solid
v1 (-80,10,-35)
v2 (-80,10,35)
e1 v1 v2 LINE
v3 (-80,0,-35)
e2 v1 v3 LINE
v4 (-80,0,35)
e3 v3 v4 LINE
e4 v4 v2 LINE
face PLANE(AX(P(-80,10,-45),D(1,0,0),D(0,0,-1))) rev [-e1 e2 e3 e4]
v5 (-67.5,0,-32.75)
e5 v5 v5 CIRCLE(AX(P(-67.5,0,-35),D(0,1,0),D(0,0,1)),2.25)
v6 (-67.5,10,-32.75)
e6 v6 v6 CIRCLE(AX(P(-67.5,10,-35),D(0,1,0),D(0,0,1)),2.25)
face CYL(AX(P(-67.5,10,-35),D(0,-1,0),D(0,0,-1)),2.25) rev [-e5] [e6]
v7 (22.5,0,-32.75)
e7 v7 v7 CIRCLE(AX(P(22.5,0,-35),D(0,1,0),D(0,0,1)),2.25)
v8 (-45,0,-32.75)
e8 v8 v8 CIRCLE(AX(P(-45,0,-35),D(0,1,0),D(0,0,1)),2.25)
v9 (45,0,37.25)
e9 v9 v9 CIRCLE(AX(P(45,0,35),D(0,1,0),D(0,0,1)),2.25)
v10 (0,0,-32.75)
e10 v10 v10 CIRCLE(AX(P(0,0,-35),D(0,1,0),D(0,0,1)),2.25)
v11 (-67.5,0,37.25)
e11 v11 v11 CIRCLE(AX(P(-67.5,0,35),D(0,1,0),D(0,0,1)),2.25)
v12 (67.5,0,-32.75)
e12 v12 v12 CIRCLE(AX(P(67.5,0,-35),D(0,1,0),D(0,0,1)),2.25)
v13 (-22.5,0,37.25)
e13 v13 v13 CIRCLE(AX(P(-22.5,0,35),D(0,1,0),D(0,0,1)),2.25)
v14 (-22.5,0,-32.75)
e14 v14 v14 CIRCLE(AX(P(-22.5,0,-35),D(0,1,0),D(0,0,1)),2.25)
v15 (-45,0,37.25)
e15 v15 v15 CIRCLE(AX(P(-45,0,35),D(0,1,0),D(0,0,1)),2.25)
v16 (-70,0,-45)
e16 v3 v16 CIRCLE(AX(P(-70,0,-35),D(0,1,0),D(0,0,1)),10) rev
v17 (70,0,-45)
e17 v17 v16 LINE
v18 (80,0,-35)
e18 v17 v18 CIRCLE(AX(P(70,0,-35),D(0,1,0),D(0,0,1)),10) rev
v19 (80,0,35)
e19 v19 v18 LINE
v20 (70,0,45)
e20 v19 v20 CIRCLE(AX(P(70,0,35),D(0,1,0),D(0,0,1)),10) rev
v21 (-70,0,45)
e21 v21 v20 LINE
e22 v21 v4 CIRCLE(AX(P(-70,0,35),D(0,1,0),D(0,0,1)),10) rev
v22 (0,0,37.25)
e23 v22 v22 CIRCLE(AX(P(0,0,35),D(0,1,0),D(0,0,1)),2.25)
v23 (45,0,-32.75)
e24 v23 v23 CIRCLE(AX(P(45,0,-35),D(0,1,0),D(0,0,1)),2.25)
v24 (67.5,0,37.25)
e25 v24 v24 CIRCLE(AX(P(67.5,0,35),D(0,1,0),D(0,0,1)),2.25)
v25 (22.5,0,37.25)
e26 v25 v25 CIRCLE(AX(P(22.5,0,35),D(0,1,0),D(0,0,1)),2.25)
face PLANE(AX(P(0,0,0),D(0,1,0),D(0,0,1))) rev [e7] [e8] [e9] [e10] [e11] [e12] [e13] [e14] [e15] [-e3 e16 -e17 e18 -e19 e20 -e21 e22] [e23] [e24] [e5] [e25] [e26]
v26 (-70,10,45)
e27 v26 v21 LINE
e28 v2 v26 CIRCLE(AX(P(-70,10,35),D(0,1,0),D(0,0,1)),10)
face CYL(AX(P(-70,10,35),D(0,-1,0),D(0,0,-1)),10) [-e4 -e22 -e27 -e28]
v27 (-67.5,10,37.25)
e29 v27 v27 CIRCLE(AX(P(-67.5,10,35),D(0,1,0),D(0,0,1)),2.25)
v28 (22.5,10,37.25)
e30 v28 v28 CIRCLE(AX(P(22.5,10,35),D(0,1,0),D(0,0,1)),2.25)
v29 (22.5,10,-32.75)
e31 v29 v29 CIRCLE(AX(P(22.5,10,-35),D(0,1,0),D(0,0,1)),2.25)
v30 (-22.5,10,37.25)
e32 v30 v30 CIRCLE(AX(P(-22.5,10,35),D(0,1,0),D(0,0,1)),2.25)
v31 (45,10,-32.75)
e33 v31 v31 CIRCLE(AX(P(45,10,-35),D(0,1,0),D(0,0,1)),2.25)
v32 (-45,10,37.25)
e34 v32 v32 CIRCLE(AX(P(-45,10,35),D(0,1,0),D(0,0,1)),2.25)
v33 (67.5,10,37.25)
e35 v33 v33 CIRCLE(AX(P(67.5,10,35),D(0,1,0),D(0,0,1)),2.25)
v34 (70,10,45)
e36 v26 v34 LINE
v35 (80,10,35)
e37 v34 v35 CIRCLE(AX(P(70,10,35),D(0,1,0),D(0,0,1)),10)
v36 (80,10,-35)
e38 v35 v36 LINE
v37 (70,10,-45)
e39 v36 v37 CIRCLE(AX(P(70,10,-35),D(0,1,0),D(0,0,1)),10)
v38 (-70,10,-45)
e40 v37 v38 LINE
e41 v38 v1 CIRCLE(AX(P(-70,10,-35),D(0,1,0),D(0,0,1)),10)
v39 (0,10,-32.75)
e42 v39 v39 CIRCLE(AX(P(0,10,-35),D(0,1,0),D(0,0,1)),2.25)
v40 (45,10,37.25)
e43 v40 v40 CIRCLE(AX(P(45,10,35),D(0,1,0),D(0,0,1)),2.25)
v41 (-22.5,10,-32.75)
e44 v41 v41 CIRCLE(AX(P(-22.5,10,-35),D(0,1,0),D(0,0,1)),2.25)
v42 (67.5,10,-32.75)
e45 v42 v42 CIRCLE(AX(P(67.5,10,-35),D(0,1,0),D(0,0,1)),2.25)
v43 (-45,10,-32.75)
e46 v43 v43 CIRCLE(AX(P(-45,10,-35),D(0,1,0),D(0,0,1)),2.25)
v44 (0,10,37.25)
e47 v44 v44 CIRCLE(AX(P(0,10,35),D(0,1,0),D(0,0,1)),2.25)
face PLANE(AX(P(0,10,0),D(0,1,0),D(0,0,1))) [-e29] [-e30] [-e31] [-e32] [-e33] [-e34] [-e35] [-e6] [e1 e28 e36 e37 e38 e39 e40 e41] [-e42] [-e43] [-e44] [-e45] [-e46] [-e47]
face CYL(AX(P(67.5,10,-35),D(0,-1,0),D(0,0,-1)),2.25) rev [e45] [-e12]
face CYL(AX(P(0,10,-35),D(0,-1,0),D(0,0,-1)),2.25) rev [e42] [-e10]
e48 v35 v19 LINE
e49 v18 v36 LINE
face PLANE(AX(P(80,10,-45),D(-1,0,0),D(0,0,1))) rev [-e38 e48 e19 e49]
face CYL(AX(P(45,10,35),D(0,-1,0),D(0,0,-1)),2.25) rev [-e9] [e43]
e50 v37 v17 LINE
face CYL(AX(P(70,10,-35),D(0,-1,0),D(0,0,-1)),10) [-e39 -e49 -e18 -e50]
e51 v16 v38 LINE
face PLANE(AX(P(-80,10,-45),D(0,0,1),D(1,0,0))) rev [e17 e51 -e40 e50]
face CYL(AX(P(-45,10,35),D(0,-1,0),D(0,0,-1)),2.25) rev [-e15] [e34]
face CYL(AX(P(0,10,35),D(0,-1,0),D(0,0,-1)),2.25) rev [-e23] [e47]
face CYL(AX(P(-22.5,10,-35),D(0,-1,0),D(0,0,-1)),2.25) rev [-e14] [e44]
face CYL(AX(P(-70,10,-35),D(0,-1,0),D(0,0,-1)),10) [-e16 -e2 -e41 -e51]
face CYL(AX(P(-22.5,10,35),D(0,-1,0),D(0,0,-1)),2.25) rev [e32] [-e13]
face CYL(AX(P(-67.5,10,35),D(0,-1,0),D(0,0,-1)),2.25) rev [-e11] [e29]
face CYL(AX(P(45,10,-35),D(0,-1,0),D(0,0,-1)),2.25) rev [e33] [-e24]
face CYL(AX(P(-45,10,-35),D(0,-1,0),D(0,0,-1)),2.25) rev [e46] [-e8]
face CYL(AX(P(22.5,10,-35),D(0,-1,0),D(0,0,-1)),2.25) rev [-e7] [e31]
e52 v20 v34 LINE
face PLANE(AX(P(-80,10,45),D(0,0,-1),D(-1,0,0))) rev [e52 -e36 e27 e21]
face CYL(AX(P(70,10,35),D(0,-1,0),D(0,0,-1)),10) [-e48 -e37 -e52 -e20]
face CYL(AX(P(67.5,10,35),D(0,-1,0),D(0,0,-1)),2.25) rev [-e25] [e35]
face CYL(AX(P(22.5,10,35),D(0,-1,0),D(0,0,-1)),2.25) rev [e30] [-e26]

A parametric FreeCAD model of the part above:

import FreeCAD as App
import Part
import Sketcher
Q = App.Units.Quantity


def edges_at(feature, points):
    """Names of the edges that pass closest to the given points."""
    edges = feature.Shape.Edges
    near = lambda p: min(range(len(edges)), key=lambda i: edges[i].distToShape(Part.Vertex(*p))[0])
    return sorted({f"Edge{near(p) + 1}" for p in points})


def add_polygon(sketch, points):
    """Adds a closed chain of lines whose ends are joined by coincident constraints."""
    first, n = sketch.GeometryCount, len(points)
    for a, b in zip(points, points[1:] + points[:1]):
        sketch.addGeometry(Part.LineSegment(App.Vector(*a, 0), App.Vector(*b, 0)), False)
    for i in range(n):
        sketch.addConstraint(Sketcher.Constraint("Coincident", first + i, 2, first + (i + 1) % n, 1))

doc = App.newDocument("Part")
body = doc.addObject("PartDesign::Body", "Body")

# Sketch on XZ plane
sketch1 = doc.addObject("Sketcher::SketchObject", "Sketch")
body.addObject(sketch1)
sketch1.AttachmentSupport = (doc.XZ_Plane, [""])
sketch1.MapMode = "FlatFace"
add_polygon(sketch1, [(-80, -45), (-80, 45), (80, 45), (80, -45)])  # lines 0-3
sketch1.addGeometry(Part.Circle(App.Vector(-67.5, 35, 0), App.Vector(0, 0, 1), 2.2), False)  # 4
sketch1.addGeometry(Part.Circle(App.Vector(-45, 35, 0), App.Vector(0, 0, 1), 2.2), False)  # 5
sketch1.addGeometry(Part.Circle(App.Vector(-22.5, 35, 0), App.Vector(0, 0, 1), 2.2), False)  # 6
sketch1.addGeometry(Part.Circle(App.Vector(0, 35, 0), App.Vector(0, 0, 1), 2.2), False)  # 7
sketch1.addGeometry(Part.Circle(App.Vector(22.5, 35, 0), App.Vector(0, 0, 1), 2.2), False)  # 8
sketch1.addGeometry(Part.Circle(App.Vector(45, 35, 0), App.Vector(0, 0, 1), 2.2), False)  # 9
sketch1.addGeometry(Part.Circle(App.Vector(67.5, 35, 0), App.Vector(0, 0, 1), 2.2), False)  # 10
sketch1.addGeometry(Part.Circle(App.Vector(-67.5, -35, 0), App.Vector(0, 0, 1), 2.2), False)  # 11
sketch1.addGeometry(Part.Circle(App.Vector(-45, -35, 0), App.Vector(0, 0, 1), 2.2), False)  # 12
sketch1.addGeometry(Part.Circle(App.Vector(-22.5, -35, 0), App.Vector(0, 0, 1), 2.2), False)  # 13
sketch1.addGeometry(Part.Circle(App.Vector(0, -35, 0), App.Vector(0, 0, 1), 2.2), False)  # 14
sketch1.addGeometry(Part.Circle(App.Vector(22.5, -35, 0), App.Vector(0, 0, 1), 2.2), False)  # 15
sketch1.addGeometry(Part.Circle(App.Vector(45, -35, 0), App.Vector(0, 0, 1), 2.2), False)  # 16
sketch1.addGeometry(Part.Circle(App.Vector(67.5, -35, 0), App.Vector(0, 0, 1), 2.2), False)  # 17
sketch1.addConstraint([
    Sketcher.Constraint("Vertical", 0),
    Sketcher.Constraint("Horizontal", 1),
    Sketcher.Constraint("Vertical", 2),
    Sketcher.Constraint("Horizontal", 3),
    Sketcher.Constraint("Equal", 4, 5),
    Sketcher.Constraint("Equal", 5, 6),
    Sketcher.Constraint("Equal", 6, 7),
    Sketcher.Constraint("Equal", 7, 8),
    Sketcher.Constraint("Equal", 8, 9),
    Sketcher.Constraint("Equal", 9, 10),
    Sketcher.Constraint("Equal", 10, 11),
    Sketcher.Constraint("Equal", 11, 12),
    Sketcher.Constraint("Equal", 12, 13),
    Sketcher.Constraint("Equal", 13, 14),
    Sketcher.Constraint("Equal", 14, 15),
    Sketcher.Constraint("Equal", 15, 16),
    Sketcher.Constraint("Equal", 16, 17),
    Sketcher.Constraint("Symmetric", 10, 3, 11, 3, -1, 1),
    Sketcher.Constraint("Symmetric", 9, 3, 12, 3, -1, 1),
    Sketcher.Constraint("Symmetric", 8, 3, 13, 3, -1, 1),
    Sketcher.Constraint("Symmetric", 7, 3, 14, 3, -1, 1),
    Sketcher.Constraint("Symmetric", 6, 3, 15, 3, -1, 1),
    Sketcher.Constraint("Symmetric", 5, 3, 16, 3, -1, 1),
    Sketcher.Constraint("Symmetric", 4, 3, 17, 3, -1, 1),
    Sketcher.Constraint("Symmetric", 0, 2, 2, 2, -1, 1),
    Sketcher.Constraint("Symmetric", 6, 3, 8, 3, -2),
    Sketcher.Constraint("Symmetric", 5, 3, 9, 3, -2),
    Sketcher.Constraint("Symmetric", 4, 3, 10, 3, -2),
    Sketcher.Constraint("PointOnObject", 7, 3, -2),
    Sketcher.Constraint("Horizontal", 4, 3, 5, 3),
    Sketcher.Constraint("Horizontal", 5, 3, 6, 3),
    Sketcher.Constraint("Horizontal", 6, 3, 7, 3),
    Sketcher.Constraint("Diameter", 4, Q("4.5 mm")),
    Sketcher.Constraint("DistanceX", 1, 1, 1, 2, Q("160 mm")),
    Sketcher.Constraint("DistanceY", 0, 1, 0, 2, Q("90 mm")),
    Sketcher.Constraint("DistanceY", -1, 1, 4, 3, Q("35 mm")),
    Sketcher.Constraint("DistanceX", 5, 3, -1, 1, Q("45 mm")),
    Sketcher.Constraint("DistanceX", 4, 3, 6, 3, Q("45 mm")),
    Sketcher.Constraint("DistanceX", 6, 3, 8, 3, Q("45 mm")),
])
pad1 = doc.addObject("PartDesign::Pad", "Pad")
body.addObject(pad1)
pad1.Profile = sketch1
pad1.Length = 10
pad1.Reversed = True
doc.recompute()

fillet = doc.addObject("PartDesign::Fillet", "Fillet")
body.addObject(fillet)
fillet.Base = (pad1, edges_at(pad1, [
    (-80, 5, -45),
    (80, 5, -45),
    (80, 5, 45),
    (-80, 5, 45),
]))
fillet.Radius = 10

doc.recompute()
